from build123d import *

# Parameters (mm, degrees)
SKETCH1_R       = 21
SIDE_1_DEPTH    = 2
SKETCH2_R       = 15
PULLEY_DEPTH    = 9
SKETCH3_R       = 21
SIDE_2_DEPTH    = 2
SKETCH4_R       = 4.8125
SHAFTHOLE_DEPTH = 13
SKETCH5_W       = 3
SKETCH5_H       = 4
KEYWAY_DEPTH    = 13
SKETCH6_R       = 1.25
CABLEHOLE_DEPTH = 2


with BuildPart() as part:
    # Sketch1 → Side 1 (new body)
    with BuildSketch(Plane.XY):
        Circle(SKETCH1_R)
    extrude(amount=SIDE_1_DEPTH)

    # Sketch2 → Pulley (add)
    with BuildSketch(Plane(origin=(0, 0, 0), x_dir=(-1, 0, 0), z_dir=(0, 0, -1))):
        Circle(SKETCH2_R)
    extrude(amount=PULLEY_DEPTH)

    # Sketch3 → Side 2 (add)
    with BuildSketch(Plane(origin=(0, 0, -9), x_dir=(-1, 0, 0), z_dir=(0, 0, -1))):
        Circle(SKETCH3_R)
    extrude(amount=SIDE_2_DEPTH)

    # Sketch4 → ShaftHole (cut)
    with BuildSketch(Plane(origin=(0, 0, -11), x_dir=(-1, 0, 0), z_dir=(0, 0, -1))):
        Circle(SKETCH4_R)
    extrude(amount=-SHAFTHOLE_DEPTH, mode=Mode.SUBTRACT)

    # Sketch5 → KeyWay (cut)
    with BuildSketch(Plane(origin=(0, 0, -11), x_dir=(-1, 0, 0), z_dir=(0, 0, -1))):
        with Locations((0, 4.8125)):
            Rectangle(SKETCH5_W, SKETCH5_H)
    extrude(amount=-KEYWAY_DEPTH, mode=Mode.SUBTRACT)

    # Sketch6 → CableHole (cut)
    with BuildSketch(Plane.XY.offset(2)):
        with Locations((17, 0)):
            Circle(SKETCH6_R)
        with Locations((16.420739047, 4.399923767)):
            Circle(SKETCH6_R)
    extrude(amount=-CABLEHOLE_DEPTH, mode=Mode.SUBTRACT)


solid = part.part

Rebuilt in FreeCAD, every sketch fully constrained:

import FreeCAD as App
import Part
import Sketcher
Q = App.Units.Quantity

doc = App.newDocument("Part")
body = doc.addObject("PartDesign::Body", "Body")

sketch1 = body.newObject("Sketcher::SketchObject", "Sketch")
sketch1.AttachmentSupport = (doc.getObject("XY_Plane"), [""])
sketch1.MapMode = "FlatFace"
sketch1.addGeometry(Part.Circle(App.Vector(0, 0, 0), App.Vector(0, 0, 1), 21), False)
sketch1.addConstraint([
    Sketcher.Constraint("Coincident", 0, 3, -1, 1),
    Sketcher.Constraint("Diameter", 0, Q("42 mm")),
])
pad1 = body.newObject("PartDesign::Pad", "Pad")
pad1.Profile = sketch1
pad1.Length = 2

sketch2 = body.newObject("Sketcher::SketchObject", "Sketch001")
sketch2.AttachmentSupport = (doc.getObject("XY_Plane"), [""])
sketch2.MapMode = "FlatFace"
sketch2.addGeometry(Part.Circle(App.Vector(0, 0, 0), App.Vector(0, 0, 1), 15), False)
sketch2.addConstraint([
    Sketcher.Constraint("Coincident", 0, 3, -1, 1),
    Sketcher.Constraint("Diameter", 0, Q("30 mm")),
])
pad2 = body.newObject("PartDesign::Pad", "Pad001")
pad2.Profile = sketch2
pad2.Length = 9
pad2.Reversed = True

sketch3 = body.newObject("Sketcher::SketchObject", "Sketch002")
sketch3.AttachmentSupport = (doc.getObject("XY_Plane"), [""])
sketch3.MapMode = "FlatFace"
sketch3.AttachmentOffset = App.Placement(App.Vector(0, 0, -9), App.Rotation())
sketch3.addGeometry(Part.Circle(App.Vector(0, 0, 0), App.Vector(0, 0, 1), 21), False)
sketch3.addConstraint([
    Sketcher.Constraint("Coincident", 0, 3, -1, 1),
    Sketcher.Constraint("Diameter", 0, Q("42 mm")),
])
pad3 = body.newObject("PartDesign::Pad", "Pad002")
pad3.Profile = sketch3
pad3.Length = 2
pad3.Reversed = True

sketch4 = body.newObject("Sketcher::SketchObject", "Sketch003")
sketch4.AttachmentSupport = (doc.getObject("XY_Plane"), [""])
sketch4.MapMode = "FlatFace"
sketch4.AttachmentOffset = App.Placement(App.Vector(0, 0, -11), App.Rotation())
sketch4.addGeometry(Part.Circle(App.Vector(0, 0, 0), App.Vector(0, 0, 1), 4.8), False)
sketch4.addConstraint([
    Sketcher.Constraint("Coincident", 0, 3, -1, 1),
    Sketcher.Constraint("Diameter", 0, Q("9.625 mm")),
])
pocket1 = body.newObject("PartDesign::Pocket", "Pocket")
pocket1.Profile = sketch4
pocket1.Length = 13
pocket1.Reversed = True

sketch5 = body.newObject("Sketcher::SketchObject", "Sketch004")
sketch5.AttachmentSupport = (doc.getObject("XY_Plane"), [""])
sketch5.MapMode = "FlatFace"
sketch5.AttachmentOffset = App.Placement(App.Vector(0, 0, -11), App.Rotation())
sketch5.addGeometry([
    Part.LineSegment(App.Vector(1.5, 6.8, 0), App.Vector(1.5, 2.8, 0)),
    Part.LineSegment(App.Vector(1.5, 2.8, 0), App.Vector(-1.5, 2.8, 0)),
    Part.LineSegment(App.Vector(-1.5, 2.8, 0), App.Vector(-1.5, 6.8, 0)),
    Part.LineSegment(App.Vector(-1.5, 6.8, 0), App.Vector(1.5, 6.8, 0)),
], False)
sketch5.addConstraint([
    Sketcher.Constraint("Coincident", 0, 2, 1, 1),
    Sketcher.Constraint("Coincident", 1, 2, 2, 1),
    Sketcher.Constraint("Coincident", 2, 2, 3, 1),
    Sketcher.Constraint("Coincident", 3, 2, 0, 1),
    Sketcher.Constraint("Vertical", 0),
    Sketcher.Constraint("Horizontal", 1),
    Sketcher.Constraint("Vertical", 2),
    Sketcher.Constraint("Horizontal", 3),
    Sketcher.Constraint("DistanceX", 1, 2, 1, 1, Q("3 mm")),
    Sketcher.Constraint("DistanceY", 0, 2, 0, 1, Q("4 mm")),
    Sketcher.Constraint("DistanceX", -1, 1, 0, 2, Q("1.5 mm")),
    Sketcher.Constraint("DistanceY", -1, 1, 0, 2, Q("2.8125 mm")),
])
pocket2 = body.newObject("PartDesign::Pocket", "Pocket001")
pocket2.Profile = sketch5
pocket2.Length = 13
pocket2.Reversed = True

sketch6 = body.newObject("Sketcher::SketchObject", "Sketch005")
sketch6.AttachmentSupport = (doc.getObject("XY_Plane"), [""])
sketch6.MapMode = "FlatFace"
sketch6.AttachmentOffset = App.Placement(App.Vector(0, 0, 2), App.Rotation())
sketch6.addGeometry([
    Part.Circle(App.Vector(17, 0, 0), App.Vector(0, 0, 1), 1.2),
    Part.Circle(App.Vector(16.4, 4.4, 0), App.Vector(0, 0, 1), 1.2),
], False)
sketch6.addConstraint([
    Sketcher.Constraint("Equal", 0, 1),
    Sketcher.Constraint("PointOnObject", 0, 3, -1),
    Sketcher.Constraint("Diameter", 0, Q("2.5 mm")),
    Sketcher.Constraint("DistanceX", -1, 1, 0, 3, Q("17 mm")),
    Sketcher.Constraint("DistanceX", -1, 1, 1, 3, Q("16.420739 mm")),
    Sketcher.Constraint("DistanceY", -1, 1, 1, 3, Q("4.399924 mm")),
])
pocket3 = body.newObject("PartDesign::Pocket", "Pocket002")
pocket3.Profile = sketch6
pocket3.Length = 2

doc.recompute()
